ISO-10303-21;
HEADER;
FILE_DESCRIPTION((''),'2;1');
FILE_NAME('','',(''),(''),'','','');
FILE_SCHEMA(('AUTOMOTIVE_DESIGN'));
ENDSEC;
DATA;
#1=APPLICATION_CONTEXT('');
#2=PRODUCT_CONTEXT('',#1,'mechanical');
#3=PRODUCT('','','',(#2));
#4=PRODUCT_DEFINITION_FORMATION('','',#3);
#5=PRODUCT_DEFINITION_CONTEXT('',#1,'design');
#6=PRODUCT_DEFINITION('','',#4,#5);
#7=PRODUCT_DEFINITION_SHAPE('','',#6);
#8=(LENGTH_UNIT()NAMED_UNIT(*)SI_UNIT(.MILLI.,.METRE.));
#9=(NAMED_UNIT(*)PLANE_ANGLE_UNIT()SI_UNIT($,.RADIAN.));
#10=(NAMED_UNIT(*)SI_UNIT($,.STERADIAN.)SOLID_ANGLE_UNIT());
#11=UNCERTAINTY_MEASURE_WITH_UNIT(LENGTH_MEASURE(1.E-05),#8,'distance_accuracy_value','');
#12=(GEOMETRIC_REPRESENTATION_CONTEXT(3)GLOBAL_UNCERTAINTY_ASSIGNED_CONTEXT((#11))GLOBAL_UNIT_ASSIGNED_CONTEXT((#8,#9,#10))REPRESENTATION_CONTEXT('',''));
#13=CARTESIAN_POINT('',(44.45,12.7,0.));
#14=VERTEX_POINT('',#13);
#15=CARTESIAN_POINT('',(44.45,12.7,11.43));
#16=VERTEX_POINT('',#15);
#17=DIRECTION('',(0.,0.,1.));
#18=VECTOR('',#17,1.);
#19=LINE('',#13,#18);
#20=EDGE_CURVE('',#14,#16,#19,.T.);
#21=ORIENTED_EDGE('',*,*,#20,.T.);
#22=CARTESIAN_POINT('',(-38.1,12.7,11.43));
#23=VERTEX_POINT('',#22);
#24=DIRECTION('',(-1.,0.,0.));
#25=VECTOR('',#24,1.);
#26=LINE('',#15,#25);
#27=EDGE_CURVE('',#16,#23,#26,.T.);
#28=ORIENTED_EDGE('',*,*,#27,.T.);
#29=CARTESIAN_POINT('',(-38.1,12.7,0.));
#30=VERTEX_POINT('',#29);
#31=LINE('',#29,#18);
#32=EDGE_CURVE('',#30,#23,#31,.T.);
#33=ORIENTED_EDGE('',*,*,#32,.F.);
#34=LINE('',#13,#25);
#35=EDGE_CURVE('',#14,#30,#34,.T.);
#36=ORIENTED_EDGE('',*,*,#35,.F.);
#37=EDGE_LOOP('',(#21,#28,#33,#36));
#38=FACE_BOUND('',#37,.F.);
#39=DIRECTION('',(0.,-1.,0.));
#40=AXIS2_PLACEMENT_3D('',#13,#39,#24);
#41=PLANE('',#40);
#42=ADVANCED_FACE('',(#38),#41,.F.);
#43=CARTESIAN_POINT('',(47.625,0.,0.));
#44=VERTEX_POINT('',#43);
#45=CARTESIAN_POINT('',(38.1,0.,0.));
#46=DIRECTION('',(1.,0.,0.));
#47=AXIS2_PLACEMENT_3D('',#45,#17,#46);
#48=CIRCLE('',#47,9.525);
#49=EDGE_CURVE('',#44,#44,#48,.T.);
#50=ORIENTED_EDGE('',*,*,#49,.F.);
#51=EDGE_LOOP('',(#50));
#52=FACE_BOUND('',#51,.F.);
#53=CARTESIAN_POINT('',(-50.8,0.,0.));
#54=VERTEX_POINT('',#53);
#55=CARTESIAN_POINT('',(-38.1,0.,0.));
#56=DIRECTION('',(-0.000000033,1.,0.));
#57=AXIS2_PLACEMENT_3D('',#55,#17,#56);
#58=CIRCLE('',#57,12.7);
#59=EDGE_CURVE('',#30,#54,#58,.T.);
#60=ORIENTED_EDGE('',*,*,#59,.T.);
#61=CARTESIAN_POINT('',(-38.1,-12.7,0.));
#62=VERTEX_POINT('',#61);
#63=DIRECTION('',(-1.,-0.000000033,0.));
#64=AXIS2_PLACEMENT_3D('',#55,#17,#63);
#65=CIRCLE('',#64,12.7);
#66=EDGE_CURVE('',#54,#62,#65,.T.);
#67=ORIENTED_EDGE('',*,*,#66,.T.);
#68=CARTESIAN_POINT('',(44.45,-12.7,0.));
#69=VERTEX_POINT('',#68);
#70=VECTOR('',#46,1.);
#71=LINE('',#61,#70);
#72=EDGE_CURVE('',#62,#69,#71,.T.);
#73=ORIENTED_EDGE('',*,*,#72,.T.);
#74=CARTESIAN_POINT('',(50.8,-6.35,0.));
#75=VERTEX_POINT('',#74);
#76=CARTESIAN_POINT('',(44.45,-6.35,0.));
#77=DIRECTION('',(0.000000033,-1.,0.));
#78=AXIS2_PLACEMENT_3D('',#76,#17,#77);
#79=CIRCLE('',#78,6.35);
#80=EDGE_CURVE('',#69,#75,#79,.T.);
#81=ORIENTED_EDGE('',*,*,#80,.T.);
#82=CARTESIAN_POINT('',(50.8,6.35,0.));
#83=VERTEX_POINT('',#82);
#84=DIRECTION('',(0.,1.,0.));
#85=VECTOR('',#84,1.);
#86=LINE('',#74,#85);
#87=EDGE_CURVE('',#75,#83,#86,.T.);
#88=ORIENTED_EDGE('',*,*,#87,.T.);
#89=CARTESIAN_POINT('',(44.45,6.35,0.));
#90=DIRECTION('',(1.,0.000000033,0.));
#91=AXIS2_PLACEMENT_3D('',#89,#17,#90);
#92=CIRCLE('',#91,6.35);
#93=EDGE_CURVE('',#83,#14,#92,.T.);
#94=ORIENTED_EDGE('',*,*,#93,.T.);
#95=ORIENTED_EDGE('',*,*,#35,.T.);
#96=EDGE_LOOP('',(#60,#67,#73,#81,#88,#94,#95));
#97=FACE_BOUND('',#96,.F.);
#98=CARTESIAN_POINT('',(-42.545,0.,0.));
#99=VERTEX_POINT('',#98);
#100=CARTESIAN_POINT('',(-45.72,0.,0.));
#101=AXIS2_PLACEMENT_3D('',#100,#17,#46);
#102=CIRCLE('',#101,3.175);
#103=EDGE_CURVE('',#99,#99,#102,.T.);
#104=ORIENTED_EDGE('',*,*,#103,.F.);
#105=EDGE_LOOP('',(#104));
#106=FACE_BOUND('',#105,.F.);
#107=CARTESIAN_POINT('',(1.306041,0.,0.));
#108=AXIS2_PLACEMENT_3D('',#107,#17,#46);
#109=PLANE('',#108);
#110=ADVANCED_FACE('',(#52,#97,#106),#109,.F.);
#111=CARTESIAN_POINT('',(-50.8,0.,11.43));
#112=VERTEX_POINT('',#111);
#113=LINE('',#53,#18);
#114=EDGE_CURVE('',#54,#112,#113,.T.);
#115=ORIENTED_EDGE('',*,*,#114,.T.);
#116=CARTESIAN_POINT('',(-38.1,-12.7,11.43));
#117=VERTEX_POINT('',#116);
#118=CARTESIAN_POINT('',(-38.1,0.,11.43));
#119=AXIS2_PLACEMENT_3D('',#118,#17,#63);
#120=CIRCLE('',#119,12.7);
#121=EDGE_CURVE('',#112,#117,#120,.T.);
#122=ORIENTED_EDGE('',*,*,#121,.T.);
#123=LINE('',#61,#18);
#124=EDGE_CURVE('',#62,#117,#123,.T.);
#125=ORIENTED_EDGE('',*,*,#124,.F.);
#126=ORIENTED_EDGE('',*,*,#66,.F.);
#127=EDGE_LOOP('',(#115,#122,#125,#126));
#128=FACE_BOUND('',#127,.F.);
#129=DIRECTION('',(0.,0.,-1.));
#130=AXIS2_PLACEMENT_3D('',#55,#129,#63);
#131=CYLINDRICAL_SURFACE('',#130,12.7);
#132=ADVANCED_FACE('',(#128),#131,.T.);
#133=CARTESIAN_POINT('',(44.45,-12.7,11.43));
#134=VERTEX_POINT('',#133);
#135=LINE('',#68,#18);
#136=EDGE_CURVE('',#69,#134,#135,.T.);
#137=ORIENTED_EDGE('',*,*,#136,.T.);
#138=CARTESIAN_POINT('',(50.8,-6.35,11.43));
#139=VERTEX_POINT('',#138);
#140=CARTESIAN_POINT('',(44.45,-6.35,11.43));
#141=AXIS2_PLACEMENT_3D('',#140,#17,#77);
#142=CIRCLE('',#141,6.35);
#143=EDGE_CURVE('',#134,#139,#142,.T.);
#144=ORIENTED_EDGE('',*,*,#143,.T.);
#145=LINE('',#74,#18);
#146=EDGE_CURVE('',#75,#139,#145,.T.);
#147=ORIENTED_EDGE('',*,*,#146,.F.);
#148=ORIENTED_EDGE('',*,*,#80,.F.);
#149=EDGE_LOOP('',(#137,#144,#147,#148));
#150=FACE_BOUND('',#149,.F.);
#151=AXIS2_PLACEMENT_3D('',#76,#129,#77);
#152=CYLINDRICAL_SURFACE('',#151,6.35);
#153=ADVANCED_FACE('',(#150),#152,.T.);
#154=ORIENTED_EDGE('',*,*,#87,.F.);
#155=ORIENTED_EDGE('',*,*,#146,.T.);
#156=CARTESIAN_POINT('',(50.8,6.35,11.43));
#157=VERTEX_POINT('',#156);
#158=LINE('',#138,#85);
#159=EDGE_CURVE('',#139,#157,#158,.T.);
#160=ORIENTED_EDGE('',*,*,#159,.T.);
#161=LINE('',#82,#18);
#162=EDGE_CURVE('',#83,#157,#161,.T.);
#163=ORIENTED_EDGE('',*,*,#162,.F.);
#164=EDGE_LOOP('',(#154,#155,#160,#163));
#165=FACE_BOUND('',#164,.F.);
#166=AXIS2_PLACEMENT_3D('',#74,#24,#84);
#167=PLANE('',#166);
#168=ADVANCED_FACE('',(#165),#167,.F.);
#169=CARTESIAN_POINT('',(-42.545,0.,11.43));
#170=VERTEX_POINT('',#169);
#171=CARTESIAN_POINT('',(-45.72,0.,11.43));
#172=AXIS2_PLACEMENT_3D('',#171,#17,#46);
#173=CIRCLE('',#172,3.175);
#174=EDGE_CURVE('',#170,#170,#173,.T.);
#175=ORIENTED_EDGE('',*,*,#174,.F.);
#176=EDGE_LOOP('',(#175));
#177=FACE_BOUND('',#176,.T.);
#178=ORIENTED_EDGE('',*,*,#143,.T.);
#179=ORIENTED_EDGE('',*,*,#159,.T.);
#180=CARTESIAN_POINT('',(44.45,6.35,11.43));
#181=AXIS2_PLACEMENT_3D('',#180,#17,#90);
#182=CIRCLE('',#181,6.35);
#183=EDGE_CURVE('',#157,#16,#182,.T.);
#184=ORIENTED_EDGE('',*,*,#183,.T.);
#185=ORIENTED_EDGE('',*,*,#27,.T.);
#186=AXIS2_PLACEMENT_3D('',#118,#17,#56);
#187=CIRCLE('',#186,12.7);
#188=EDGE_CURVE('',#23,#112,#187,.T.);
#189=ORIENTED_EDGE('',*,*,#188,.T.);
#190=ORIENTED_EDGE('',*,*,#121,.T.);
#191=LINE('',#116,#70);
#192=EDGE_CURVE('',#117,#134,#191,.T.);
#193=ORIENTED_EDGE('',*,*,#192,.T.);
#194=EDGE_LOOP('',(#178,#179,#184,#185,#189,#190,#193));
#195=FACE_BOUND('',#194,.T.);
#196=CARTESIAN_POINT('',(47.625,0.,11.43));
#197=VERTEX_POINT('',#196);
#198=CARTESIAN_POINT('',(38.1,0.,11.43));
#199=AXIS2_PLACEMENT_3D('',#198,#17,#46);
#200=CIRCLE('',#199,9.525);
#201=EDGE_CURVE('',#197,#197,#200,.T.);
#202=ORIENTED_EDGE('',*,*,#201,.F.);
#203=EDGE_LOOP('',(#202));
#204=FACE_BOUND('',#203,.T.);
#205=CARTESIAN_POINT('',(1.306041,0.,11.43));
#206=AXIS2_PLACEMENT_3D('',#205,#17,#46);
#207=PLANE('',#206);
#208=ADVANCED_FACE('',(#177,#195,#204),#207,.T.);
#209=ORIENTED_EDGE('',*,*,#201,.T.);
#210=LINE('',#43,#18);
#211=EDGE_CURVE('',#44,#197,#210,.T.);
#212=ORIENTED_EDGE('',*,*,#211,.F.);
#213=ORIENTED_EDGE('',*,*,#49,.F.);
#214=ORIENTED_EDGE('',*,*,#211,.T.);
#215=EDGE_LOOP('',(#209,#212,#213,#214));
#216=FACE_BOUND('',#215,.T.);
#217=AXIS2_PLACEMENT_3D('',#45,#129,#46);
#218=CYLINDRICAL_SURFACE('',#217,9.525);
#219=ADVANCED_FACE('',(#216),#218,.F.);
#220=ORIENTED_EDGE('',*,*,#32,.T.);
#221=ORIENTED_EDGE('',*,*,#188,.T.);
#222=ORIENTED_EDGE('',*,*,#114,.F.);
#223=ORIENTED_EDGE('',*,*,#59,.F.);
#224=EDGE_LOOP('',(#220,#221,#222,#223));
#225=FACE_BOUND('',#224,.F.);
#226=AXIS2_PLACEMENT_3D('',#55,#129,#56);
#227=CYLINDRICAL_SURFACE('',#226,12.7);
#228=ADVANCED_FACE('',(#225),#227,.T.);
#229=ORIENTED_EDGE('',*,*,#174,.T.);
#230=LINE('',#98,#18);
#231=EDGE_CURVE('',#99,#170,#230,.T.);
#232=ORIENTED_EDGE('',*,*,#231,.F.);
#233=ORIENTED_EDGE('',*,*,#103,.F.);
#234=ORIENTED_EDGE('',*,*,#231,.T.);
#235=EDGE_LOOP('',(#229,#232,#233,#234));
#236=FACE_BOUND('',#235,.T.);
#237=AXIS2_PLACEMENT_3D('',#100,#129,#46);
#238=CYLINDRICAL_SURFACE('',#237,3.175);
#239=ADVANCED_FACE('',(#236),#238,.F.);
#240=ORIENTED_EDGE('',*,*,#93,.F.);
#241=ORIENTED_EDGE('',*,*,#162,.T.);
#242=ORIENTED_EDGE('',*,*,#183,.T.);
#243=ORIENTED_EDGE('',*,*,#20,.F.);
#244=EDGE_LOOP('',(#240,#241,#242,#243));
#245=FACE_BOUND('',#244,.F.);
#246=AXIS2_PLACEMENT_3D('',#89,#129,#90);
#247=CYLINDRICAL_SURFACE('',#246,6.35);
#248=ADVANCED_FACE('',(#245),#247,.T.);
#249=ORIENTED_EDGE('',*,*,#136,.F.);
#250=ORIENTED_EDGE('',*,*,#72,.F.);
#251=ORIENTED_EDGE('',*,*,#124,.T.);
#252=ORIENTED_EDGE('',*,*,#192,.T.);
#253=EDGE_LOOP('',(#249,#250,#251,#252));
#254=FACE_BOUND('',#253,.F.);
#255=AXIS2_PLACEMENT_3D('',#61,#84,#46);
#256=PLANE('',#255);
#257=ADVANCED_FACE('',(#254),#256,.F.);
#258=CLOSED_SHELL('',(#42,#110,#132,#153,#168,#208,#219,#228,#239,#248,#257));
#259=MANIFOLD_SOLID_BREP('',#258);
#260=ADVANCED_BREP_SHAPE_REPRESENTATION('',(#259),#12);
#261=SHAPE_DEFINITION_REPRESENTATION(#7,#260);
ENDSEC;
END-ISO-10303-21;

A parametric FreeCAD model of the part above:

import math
import FreeCAD as App
import Part
import Sketcher
from FreeCAD import Vector
Q = App.Units.Quantity

doc = App.newDocument("Part")
body = doc.addObject("PartDesign::Body", "Body")

# Sketch on XY plane
sketch1 = body.newObject("Sketcher::SketchObject", "Sketch")
sketch1.AttachmentSupport = (doc.getObject("XY_Plane"), [""])
sketch1.MapMode = "FlatFace"
sketch1.addGeometry([
    Part.LineSegment(Vector(44.5, 12.7, 0), Vector(-38.1, 12.7, 0)),  # 0
    Part.ArcOfCircle(Part.Circle(Vector(-38.1, 0, 0), Vector(0, 0, 1), 12.7), math.radians(90), math.radians(180)),  # 1
    Part.ArcOfCircle(Part.Circle(Vector(-38.1, 0, 0), Vector(0, 0, 1), 12.7), math.radians(-180), math.radians(-90)),  # 2
    Part.LineSegment(Vector(-38.1, -12.7, 0), Vector(44.5, -12.7, 0)),  # 3
    Part.ArcOfCircle(Part.Circle(Vector(44.4, -6.3, 0), Vector(0, 0, 1), 6.4), math.radians(-90), math.radians(0)),  # 4
    Part.LineSegment(Vector(50.8, -6.3, 0), Vector(50.8, 6.3, 0)),  # 5
    Part.ArcOfCircle(Part.Circle(Vector(44.4, 6.3, 0), Vector(0, 0, 1), 6.4), math.radians(0), math.radians(90)),  # 6
    Part.Circle(Vector(-45.7, 0, 0), Vector(0, 0, 1), 3.2),  # 7
    Part.Circle(Vector(38.1, 0, 0), Vector(0, 0, 1), 9.5),  # 8
], False)
sketch1.addConstraint([
    Sketcher.Constraint("Tangent", 0, 2, 1, 1),
    Sketcher.Constraint("Tangent", 1, 2, 2, 1),
    Sketcher.Constraint("Tangent", 2, 2, 3, 1),
    Sketcher.Constraint("Tangent", 3, 2, 4, 1),
    Sketcher.Constraint("Tangent", 4, 2, 5, 1),
    Sketcher.Constraint("Tangent", 5, 2, 6, 1),
    Sketcher.Constraint("Tangent", 6, 2, 0, 1),
    Sketcher.Constraint("Horizontal", 0),
    Sketcher.Constraint("Horizontal", 3),
    Sketcher.Constraint("Vertical", 5),
    Sketcher.Constraint("Equal", 1, 2),
    Sketcher.Constraint("Equal", 4, 6),
    Sketcher.Constraint("Symmetric", 1, 3, 8, 3, -1, 1),
    Sketcher.Constraint("PointOnObject", 1, 3, -1),
    Sketcher.Constraint("PointOnObject", 7, 3, -1),
    Sketcher.Constraint("PointOnObject", 1, 2, -1),
    Sketcher.Constraint("Radius", 1, Q("0.5 in")),
    Sketcher.Constraint("Diameter", 7, Q("0.25 in")),
    Sketcher.Constraint("Diameter", 8, Q("0.75 in")),
    Sketcher.Constraint("Radius", 4, Q("0.25 in")),
    Sketcher.Constraint("DistanceX", 1, 2, -1, 1, Q("2 in")),
    Sketcher.Constraint("DistanceX", -1, 1, 4, 2, Q("2 in")),
    Sketcher.Constraint("DistanceX", 7, 3, -1, 1, Q("1.8 in")),
])
pad1 = body.newObject("PartDesign::Pad", "Pad")
pad1.Profile = sketch1
pad1.Length = Q("0.45 in")

doc.recompute()
